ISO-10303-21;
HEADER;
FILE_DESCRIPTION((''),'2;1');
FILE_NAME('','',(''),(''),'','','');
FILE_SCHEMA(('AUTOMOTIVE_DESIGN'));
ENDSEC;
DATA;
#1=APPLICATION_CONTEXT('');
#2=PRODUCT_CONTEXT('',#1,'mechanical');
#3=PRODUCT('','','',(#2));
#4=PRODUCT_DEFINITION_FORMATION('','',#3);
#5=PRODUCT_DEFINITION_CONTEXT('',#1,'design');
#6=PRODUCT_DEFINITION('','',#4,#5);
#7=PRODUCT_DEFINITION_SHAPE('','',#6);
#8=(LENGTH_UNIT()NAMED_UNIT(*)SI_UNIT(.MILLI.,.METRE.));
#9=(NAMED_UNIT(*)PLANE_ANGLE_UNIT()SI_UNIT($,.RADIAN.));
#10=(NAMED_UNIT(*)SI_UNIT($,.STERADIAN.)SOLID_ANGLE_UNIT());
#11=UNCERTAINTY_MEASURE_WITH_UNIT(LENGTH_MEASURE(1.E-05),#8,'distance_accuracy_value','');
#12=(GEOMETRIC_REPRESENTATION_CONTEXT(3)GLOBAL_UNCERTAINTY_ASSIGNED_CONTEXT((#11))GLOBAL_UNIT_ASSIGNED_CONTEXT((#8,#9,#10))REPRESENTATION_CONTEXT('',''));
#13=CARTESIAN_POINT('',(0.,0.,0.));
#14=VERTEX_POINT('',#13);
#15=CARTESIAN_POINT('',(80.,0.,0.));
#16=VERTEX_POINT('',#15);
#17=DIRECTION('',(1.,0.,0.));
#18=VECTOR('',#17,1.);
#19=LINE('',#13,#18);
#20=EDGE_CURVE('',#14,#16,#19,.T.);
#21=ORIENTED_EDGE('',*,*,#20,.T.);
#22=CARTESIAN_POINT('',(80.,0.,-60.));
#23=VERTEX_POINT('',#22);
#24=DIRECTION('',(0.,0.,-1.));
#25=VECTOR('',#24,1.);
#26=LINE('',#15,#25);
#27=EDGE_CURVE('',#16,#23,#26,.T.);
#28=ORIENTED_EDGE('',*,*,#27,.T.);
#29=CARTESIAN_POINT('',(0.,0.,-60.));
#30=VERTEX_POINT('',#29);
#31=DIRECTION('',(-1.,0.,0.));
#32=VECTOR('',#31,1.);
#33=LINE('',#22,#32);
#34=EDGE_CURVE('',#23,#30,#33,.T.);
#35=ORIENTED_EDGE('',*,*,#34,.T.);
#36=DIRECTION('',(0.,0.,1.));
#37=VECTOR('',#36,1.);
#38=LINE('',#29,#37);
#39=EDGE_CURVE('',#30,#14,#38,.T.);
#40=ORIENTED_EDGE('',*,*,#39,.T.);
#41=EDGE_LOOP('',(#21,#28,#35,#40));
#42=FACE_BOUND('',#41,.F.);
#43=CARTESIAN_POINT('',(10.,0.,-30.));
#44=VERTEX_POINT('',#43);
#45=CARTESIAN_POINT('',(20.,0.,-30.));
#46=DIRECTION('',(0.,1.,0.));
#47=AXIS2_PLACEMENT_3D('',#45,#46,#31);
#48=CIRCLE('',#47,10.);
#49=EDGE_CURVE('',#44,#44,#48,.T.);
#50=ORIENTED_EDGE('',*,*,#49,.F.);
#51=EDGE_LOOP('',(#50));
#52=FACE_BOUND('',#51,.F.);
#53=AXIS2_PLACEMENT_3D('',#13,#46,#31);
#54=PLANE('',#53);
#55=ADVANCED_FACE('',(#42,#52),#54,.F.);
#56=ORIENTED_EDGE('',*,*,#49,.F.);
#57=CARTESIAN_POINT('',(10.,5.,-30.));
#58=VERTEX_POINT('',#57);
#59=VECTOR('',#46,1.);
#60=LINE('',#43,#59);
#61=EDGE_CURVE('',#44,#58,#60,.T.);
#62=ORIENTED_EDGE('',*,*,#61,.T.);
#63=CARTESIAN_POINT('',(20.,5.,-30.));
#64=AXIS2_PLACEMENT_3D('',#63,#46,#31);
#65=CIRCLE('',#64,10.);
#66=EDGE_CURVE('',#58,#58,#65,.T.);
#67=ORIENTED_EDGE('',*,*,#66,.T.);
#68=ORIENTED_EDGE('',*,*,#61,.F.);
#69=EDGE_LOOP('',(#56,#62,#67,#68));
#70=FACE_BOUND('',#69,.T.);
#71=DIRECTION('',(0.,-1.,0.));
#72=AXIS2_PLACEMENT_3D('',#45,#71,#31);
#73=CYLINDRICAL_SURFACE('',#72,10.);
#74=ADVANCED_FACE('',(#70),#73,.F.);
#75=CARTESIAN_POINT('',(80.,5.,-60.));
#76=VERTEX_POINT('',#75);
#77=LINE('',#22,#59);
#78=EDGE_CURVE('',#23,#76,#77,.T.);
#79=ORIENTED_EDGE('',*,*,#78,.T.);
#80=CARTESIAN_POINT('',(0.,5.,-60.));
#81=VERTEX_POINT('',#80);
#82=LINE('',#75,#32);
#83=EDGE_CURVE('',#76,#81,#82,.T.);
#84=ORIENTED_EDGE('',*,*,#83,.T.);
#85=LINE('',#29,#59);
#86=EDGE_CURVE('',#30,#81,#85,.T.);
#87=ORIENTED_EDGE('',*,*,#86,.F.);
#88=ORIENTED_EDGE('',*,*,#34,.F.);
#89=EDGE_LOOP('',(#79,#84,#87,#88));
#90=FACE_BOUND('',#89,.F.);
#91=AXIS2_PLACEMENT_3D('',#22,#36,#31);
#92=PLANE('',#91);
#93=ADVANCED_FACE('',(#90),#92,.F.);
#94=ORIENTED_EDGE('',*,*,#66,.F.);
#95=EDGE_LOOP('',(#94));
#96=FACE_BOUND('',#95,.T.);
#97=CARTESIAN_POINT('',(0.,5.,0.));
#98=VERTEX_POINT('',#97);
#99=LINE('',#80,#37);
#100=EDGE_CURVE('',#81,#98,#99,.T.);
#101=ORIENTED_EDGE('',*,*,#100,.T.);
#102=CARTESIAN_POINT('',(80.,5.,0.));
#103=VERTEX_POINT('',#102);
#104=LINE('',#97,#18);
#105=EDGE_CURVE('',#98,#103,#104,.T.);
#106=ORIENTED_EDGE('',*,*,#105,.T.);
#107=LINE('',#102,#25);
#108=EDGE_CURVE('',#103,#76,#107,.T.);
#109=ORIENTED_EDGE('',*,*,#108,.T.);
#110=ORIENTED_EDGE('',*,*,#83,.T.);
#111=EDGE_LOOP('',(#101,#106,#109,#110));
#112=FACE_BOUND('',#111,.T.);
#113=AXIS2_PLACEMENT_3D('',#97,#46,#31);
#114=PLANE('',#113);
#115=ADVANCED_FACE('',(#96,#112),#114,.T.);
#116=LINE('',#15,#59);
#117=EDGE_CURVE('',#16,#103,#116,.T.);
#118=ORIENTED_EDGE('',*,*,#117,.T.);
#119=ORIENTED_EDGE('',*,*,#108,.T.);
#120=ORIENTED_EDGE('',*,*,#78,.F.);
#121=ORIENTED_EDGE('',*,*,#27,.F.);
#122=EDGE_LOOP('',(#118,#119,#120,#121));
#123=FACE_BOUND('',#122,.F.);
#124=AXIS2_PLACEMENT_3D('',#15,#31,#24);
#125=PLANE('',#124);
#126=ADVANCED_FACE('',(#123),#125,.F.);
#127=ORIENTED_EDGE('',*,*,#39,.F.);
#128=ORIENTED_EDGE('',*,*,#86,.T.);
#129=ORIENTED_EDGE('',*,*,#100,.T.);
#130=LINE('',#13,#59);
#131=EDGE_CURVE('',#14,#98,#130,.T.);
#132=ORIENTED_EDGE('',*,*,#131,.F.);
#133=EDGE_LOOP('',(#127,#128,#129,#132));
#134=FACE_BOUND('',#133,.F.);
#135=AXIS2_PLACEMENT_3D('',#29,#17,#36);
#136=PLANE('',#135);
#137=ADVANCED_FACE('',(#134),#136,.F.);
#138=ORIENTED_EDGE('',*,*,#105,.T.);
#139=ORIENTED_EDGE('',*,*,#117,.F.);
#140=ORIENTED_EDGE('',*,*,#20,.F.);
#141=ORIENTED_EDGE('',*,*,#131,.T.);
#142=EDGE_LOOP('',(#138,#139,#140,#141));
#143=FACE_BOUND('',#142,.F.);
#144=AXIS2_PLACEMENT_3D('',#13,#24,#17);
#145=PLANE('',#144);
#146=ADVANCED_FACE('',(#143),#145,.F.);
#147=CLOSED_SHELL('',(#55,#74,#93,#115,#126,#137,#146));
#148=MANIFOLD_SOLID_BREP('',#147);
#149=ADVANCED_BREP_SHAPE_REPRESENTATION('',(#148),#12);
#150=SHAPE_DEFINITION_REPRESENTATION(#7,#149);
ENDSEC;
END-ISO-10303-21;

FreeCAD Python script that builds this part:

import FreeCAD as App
import Part
import Sketcher


def add_polygon(sketch, points):
    """Adds a closed chain of lines whose ends are joined by coincident constraints."""
    first, n = sketch.GeometryCount, len(points)
    for a, b in zip(points, points[1:] + points[:1]):
        sketch.addGeometry(Part.LineSegment(App.Vector(*a, 0), App.Vector(*b, 0)), False)
    for i in range(n):
        sketch.addConstraint(Sketcher.Constraint("Coincident", first + i, 2, first + (i + 1) % n, 1))

doc = App.newDocument("Part")
body = doc.addObject("PartDesign::Body", "Body")

# Sketch on XZ plane
sketch1 = body.newObject("Sketcher::SketchObject", "Sketch")
sketch1.AttachmentSupport = (doc.getObject("XZ_Plane"), [""])
sketch1.MapMode = "FlatFace"
add_polygon(sketch1, [(0, -60), (0, 0), (80, 0), (80, -60)])  # lines 0-3
sketch1.addGeometry(Part.Circle(App.Vector(20, -30, 0), App.Vector(0, 0, 1), 10), False)  # 4
sketch1.addConstraint(Sketcher.Constraint("Vertical", 0))
sketch1.addConstraint(Sketcher.Constraint("Horizontal", 1))
sketch1.addConstraint(Sketcher.Constraint("Vertical", 2))
sketch1.addConstraint(Sketcher.Constraint("Horizontal", 3))
sketch1.addConstraint(Sketcher.Constraint("Coincident", 0, 2, -1, 1))
sketch1.addConstraint(Sketcher.Constraint("Diameter", 4, 20.0))
sketch1.addConstraint(Sketcher.Constraint("DistanceX", 1, 1, 1, 2, 80.0))
sketch1.addConstraint(Sketcher.Constraint("DistanceY", 0, 1, 0, 2, 60.0))
sketch1.addConstraint(Sketcher.Constraint("DistanceX", -1, 1, 4, 3, 20.0))
sketch1.addConstraint(Sketcher.Constraint("DistanceY", 4, 3, -1, 1, 30.0))
pad1 = body.newObject("PartDesign::Pad", "Pad")
pad1.Profile = sketch1
pad1.Length = 5
pad1.Reversed = True

doc.recompute()
